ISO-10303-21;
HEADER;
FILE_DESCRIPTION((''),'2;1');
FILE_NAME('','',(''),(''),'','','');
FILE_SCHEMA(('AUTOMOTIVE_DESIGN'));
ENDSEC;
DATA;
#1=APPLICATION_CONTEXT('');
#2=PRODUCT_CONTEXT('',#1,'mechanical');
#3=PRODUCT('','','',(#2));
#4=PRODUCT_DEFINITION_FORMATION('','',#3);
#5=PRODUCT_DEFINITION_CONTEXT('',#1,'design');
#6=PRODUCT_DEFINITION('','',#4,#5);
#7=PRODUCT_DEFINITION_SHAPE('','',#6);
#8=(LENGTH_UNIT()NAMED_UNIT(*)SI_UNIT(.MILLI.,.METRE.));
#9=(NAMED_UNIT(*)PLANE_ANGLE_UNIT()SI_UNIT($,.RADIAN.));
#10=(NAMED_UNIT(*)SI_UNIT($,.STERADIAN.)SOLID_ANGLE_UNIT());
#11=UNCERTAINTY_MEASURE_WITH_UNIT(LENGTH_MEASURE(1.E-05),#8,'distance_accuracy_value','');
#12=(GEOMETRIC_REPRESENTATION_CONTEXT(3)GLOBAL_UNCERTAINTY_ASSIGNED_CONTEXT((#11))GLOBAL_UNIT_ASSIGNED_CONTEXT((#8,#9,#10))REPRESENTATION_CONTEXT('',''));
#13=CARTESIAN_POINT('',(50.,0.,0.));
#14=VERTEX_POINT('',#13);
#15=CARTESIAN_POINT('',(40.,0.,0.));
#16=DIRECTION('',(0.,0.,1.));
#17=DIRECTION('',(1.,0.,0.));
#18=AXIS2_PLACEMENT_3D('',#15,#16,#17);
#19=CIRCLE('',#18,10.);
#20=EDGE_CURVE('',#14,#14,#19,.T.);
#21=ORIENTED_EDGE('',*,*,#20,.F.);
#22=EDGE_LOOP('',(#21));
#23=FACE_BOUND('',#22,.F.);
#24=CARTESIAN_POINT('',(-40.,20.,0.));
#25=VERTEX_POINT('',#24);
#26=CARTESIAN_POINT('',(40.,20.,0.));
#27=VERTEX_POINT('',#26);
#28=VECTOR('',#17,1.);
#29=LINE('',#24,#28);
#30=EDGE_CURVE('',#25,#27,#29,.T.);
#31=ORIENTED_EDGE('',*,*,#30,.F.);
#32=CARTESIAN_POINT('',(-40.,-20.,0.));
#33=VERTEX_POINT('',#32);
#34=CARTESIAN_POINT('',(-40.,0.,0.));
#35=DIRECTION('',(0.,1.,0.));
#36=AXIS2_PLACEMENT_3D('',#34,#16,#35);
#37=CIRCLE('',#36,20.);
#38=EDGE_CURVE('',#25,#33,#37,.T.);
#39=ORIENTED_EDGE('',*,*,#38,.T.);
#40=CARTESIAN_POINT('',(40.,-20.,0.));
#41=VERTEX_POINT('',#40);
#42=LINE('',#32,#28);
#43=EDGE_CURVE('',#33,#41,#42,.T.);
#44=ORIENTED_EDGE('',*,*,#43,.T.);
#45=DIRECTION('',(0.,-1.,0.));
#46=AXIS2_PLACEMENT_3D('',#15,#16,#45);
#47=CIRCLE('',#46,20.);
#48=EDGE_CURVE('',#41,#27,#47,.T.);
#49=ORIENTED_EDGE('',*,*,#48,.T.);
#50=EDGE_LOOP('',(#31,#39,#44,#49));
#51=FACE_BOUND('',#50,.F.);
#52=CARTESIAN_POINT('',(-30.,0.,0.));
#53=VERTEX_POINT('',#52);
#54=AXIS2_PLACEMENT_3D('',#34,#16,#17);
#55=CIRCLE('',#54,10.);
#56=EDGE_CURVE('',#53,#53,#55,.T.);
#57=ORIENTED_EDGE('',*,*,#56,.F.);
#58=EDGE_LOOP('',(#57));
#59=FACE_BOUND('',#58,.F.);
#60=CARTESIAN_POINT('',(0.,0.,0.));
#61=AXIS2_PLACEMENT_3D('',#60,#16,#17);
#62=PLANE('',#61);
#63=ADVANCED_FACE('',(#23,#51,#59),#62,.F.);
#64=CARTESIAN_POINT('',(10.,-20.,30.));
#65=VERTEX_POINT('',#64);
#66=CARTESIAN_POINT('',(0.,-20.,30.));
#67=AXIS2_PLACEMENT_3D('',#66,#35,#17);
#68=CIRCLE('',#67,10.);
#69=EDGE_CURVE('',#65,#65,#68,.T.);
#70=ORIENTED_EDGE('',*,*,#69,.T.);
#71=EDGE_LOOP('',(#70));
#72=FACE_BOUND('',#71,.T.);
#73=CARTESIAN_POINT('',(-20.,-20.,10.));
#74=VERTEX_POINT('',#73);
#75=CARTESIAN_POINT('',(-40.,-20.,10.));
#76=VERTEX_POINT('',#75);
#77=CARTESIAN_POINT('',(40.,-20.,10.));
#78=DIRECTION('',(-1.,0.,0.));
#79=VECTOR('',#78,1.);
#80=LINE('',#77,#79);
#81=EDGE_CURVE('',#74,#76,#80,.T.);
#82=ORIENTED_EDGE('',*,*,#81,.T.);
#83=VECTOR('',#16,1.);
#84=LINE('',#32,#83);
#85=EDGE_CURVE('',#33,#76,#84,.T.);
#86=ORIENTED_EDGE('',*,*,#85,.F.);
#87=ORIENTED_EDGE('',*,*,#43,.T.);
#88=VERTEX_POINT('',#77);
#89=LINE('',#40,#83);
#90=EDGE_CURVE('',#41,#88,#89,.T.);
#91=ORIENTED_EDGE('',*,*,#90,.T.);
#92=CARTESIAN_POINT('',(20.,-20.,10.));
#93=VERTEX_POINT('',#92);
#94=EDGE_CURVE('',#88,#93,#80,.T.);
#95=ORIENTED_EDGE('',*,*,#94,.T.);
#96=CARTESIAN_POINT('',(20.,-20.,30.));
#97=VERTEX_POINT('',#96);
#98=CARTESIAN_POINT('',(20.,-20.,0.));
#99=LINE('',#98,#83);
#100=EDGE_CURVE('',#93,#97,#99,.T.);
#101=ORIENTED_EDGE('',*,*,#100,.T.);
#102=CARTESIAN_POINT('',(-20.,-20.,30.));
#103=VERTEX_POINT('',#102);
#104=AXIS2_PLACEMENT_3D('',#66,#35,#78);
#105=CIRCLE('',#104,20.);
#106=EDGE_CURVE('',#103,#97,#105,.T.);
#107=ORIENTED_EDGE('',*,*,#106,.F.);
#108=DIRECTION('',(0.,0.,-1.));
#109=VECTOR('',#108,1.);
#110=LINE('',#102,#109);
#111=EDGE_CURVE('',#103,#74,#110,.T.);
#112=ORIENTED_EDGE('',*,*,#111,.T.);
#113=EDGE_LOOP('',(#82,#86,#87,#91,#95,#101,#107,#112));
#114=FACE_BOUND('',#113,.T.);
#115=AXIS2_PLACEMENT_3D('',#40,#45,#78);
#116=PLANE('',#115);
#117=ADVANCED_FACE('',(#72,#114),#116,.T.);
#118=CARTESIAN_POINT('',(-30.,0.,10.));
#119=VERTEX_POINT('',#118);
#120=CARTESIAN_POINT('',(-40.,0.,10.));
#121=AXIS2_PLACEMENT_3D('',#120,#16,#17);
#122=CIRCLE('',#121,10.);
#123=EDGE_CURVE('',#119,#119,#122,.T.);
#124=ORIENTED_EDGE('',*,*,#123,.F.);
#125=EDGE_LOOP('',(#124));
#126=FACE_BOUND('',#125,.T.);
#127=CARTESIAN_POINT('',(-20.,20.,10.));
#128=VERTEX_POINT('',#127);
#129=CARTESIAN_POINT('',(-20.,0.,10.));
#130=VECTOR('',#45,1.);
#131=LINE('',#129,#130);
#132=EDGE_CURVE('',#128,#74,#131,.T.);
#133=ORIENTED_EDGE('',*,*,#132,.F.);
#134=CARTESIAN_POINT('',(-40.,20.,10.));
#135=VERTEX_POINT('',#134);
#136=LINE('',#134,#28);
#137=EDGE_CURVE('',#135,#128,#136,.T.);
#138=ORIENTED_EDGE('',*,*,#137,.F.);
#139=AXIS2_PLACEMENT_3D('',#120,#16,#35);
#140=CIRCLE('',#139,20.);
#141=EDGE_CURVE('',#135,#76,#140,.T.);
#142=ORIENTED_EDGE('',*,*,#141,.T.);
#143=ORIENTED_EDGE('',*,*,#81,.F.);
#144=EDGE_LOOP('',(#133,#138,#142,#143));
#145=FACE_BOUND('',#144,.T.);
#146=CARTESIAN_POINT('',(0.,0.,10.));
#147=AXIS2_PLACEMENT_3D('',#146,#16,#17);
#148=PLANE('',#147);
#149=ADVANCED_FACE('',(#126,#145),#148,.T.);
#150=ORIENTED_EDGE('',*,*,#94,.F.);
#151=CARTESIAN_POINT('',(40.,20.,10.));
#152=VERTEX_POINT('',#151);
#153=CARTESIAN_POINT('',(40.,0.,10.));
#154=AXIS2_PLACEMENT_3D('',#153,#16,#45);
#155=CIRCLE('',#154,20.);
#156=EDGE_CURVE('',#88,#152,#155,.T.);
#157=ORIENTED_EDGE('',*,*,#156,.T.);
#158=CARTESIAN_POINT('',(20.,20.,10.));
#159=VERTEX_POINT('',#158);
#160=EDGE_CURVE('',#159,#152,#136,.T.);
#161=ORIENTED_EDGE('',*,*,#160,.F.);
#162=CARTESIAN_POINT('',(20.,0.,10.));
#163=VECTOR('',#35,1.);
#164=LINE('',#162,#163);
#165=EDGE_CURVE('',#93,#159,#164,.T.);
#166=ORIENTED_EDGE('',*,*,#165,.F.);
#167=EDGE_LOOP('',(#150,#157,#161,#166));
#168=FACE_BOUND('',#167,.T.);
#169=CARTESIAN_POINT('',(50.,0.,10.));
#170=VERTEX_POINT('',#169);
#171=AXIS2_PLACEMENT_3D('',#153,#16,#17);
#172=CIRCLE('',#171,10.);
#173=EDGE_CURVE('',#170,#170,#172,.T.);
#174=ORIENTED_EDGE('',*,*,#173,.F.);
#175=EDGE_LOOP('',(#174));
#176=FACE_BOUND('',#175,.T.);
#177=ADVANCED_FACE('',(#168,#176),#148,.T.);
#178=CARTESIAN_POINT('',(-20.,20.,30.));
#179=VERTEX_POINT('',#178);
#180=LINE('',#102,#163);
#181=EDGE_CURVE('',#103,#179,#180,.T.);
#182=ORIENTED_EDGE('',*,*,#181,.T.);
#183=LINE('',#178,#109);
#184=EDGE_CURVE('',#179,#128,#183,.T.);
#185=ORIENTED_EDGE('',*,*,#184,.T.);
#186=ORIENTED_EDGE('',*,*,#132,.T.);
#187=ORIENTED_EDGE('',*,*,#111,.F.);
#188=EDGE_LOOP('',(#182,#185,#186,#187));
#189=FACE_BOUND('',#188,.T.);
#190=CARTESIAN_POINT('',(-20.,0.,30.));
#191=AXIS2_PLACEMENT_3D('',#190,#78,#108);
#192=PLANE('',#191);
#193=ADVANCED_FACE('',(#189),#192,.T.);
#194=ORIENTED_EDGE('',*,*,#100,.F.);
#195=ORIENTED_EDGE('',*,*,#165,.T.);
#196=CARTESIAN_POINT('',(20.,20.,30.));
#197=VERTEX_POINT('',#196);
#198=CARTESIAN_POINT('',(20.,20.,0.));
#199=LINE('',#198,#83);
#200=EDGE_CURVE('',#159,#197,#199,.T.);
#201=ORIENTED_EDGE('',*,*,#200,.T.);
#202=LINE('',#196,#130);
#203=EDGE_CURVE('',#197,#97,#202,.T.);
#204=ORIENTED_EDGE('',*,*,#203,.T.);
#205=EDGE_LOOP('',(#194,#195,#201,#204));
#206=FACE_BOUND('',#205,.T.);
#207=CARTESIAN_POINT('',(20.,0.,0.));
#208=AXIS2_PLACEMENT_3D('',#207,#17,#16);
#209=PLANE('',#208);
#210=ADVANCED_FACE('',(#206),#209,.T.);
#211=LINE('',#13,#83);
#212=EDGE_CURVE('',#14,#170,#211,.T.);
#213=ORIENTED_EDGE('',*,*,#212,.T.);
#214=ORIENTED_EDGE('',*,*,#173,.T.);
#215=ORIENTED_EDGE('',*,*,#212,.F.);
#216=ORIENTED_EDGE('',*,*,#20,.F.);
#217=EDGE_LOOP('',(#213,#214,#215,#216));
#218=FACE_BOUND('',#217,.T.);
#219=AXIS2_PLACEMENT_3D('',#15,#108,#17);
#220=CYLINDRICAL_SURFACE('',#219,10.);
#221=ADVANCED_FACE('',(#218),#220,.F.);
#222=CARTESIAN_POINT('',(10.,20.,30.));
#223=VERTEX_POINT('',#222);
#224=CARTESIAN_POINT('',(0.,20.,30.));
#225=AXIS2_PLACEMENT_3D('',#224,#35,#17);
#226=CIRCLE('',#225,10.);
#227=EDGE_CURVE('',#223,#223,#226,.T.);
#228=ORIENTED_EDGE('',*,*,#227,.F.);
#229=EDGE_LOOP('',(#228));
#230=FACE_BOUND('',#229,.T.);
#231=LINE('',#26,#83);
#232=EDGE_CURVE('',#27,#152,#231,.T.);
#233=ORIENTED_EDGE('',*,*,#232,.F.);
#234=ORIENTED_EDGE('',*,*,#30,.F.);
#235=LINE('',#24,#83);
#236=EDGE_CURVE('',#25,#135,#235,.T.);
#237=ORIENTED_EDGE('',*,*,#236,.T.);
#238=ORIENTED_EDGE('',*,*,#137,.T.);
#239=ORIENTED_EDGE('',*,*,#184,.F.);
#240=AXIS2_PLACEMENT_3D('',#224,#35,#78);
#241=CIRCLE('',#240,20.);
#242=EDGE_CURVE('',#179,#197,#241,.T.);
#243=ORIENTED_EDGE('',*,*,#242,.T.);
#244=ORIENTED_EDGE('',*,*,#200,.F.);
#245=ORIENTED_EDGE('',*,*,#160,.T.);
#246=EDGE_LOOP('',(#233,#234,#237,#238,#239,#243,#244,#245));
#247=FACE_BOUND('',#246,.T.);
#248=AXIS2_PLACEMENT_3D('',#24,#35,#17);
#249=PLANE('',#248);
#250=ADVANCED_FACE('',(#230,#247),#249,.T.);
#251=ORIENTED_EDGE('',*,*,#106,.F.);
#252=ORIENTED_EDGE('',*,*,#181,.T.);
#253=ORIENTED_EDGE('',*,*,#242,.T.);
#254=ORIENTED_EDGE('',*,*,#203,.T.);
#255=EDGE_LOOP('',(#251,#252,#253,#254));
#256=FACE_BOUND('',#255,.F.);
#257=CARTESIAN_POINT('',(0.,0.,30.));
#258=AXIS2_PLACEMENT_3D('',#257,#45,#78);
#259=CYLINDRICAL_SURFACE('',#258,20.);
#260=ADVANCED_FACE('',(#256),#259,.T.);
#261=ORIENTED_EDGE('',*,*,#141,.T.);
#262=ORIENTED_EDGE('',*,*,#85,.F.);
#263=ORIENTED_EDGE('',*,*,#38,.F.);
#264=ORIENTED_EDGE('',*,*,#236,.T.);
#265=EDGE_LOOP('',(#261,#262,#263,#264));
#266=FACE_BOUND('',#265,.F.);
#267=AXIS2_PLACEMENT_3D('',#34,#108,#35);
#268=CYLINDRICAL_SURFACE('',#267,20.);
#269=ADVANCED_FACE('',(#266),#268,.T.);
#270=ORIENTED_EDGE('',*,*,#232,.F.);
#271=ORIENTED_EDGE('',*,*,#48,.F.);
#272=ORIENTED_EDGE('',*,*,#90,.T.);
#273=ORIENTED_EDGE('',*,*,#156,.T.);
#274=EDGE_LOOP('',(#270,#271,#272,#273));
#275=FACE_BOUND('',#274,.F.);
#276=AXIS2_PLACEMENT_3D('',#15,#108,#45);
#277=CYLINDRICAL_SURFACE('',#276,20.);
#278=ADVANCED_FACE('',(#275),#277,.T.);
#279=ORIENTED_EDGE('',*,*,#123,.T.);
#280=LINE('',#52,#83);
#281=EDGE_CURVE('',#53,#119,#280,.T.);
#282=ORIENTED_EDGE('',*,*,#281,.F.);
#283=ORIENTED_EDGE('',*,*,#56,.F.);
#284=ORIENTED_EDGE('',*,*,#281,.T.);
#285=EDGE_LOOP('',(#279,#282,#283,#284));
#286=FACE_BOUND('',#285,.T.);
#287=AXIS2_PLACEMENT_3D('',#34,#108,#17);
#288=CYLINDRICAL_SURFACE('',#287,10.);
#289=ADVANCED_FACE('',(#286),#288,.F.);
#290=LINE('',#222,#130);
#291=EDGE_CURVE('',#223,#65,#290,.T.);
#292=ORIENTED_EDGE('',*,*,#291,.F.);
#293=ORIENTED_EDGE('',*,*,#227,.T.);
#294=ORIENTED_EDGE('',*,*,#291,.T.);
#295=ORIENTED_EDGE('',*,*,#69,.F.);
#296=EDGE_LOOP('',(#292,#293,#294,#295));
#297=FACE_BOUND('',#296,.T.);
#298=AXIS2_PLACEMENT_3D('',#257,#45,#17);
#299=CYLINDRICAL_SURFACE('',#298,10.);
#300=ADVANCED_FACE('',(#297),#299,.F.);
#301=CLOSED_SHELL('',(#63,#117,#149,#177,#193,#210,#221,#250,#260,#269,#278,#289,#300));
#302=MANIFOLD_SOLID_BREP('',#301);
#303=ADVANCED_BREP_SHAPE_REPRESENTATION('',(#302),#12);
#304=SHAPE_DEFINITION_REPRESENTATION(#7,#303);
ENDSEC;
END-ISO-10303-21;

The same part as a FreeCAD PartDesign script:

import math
import FreeCAD as App
import Part
import Sketcher
Q = App.Units.Quantity

doc = App.newDocument("Part")
body = doc.addObject("PartDesign::Body", "Body")

# Sketch on XY plane
sketch1 = body.newObject("Sketcher::SketchObject", "Sketch")
sketch1.AttachmentSupport = (doc.getObject("XY_Plane"), [""])
sketch1.MapMode = "FlatFace"
sketch1.addGeometry([
    Part.LineSegment(App.Vector(-40, -20, 0), App.Vector(40, -20, 0)),  # 0
    Part.ArcOfCircle(Part.Circle(App.Vector(40, 0, 0), App.Vector(0, 0, 1), 20), math.radians(-90), math.radians(90)),  # 1
    Part.LineSegment(App.Vector(40, 20, 0), App.Vector(-40, 20, 0)),  # 2
    Part.ArcOfCircle(Part.Circle(App.Vector(-40, 0, 0), App.Vector(0, 0, 1), 20), math.radians(90), math.radians(270)),  # 3
    Part.Circle(App.Vector(-40, 0, 0), App.Vector(0, 0, 1), 10),  # 4
    Part.Circle(App.Vector(40, 0, 0), App.Vector(0, 0, 1), 10),  # 5
], False)
sketch1.addConstraint([
    Sketcher.Constraint("Tangent", 0, 2, 1, 1),
    Sketcher.Constraint("Tangent", 1, 2, 2, 1),
    Sketcher.Constraint("Tangent", 2, 2, 3, 1),
    Sketcher.Constraint("Tangent", 3, 2, 0, 1),
    Sketcher.Constraint("Horizontal", 0),
    Sketcher.Constraint("Horizontal", 2),
    Sketcher.Constraint("Coincident", 4, 3, 3, 3),
    Sketcher.Constraint("Coincident", 5, 3, 1, 3),
    Sketcher.Constraint("Equal", 4, 5),
    Sketcher.Constraint("Symmetric", 1, 3, 3, 3, -1, 1),
    Sketcher.Constraint("Radius", 1, Q("20 mm")),
    Sketcher.Constraint("DistanceX", 0, 1, 0, 2, Q("80 mm")),
    Sketcher.Constraint("Diameter", 4, Q("20 mm")),
])
pad1 = body.newObject("PartDesign::Pad", "Pad")
pad1.Profile = sketch1
pad1.Length = 10

# Sketch on XZ plane
sketch2 = body.newObject("Sketcher::SketchObject", "Sketch001")
sketch2.AttachmentSupport = (doc.getObject("XZ_Plane"), [""])
sketch2.MapMode = "FlatFace"
sketch2.addGeometry([
    Part.LineSegment(App.Vector(20, 0, 0), App.Vector(-20, 0, 0)),  # 0
    Part.LineSegment(App.Vector(-20, 0, 0), App.Vector(-20, 30, 0)),  # 1
    Part.ArcOfCircle(Part.Circle(App.Vector(0, 30, 0), App.Vector(0, 0, 1), 20), math.radians(0), math.radians(180)),  # 2
    Part.LineSegment(App.Vector(20, 30, 0), App.Vector(20, 0, 0)),  # 3
    Part.Circle(App.Vector(0, 30, 0), App.Vector(0, 0, 1), 10),  # 4
], False)
sketch2.addConstraint([
    Sketcher.Constraint("Coincident", 0, 2, 1, 1),
    Sketcher.Constraint("Tangent", 1, 2, 2, 2),
    Sketcher.Constraint("Tangent", 2, 1, 3, 1),
    Sketcher.Constraint("Coincident", 3, 2, 0, 1),
    Sketcher.Constraint("Horizontal", 0),
    Sketcher.Constraint("Vertical", 1),
    Sketcher.Constraint("Vertical", 3),
    Sketcher.Constraint("Coincident", 4, 3, 2, 3),
    Sketcher.Constraint("Symmetric", 0, 2, 3, 2, -1, 1),
    Sketcher.Constraint("Diameter", 4, Q("20 mm")),
    Sketcher.Constraint("Radius", 2, Q("20 mm")),
    Sketcher.Constraint("DistanceY", 1, 1, 1, 2, Q("30 mm")),
])
pad2 = body.newObject("PartDesign::Pad", "Pad001")
pad2.Profile = sketch2
pad2.Length = 40
pad2.Midplane = True

doc.recompute()
